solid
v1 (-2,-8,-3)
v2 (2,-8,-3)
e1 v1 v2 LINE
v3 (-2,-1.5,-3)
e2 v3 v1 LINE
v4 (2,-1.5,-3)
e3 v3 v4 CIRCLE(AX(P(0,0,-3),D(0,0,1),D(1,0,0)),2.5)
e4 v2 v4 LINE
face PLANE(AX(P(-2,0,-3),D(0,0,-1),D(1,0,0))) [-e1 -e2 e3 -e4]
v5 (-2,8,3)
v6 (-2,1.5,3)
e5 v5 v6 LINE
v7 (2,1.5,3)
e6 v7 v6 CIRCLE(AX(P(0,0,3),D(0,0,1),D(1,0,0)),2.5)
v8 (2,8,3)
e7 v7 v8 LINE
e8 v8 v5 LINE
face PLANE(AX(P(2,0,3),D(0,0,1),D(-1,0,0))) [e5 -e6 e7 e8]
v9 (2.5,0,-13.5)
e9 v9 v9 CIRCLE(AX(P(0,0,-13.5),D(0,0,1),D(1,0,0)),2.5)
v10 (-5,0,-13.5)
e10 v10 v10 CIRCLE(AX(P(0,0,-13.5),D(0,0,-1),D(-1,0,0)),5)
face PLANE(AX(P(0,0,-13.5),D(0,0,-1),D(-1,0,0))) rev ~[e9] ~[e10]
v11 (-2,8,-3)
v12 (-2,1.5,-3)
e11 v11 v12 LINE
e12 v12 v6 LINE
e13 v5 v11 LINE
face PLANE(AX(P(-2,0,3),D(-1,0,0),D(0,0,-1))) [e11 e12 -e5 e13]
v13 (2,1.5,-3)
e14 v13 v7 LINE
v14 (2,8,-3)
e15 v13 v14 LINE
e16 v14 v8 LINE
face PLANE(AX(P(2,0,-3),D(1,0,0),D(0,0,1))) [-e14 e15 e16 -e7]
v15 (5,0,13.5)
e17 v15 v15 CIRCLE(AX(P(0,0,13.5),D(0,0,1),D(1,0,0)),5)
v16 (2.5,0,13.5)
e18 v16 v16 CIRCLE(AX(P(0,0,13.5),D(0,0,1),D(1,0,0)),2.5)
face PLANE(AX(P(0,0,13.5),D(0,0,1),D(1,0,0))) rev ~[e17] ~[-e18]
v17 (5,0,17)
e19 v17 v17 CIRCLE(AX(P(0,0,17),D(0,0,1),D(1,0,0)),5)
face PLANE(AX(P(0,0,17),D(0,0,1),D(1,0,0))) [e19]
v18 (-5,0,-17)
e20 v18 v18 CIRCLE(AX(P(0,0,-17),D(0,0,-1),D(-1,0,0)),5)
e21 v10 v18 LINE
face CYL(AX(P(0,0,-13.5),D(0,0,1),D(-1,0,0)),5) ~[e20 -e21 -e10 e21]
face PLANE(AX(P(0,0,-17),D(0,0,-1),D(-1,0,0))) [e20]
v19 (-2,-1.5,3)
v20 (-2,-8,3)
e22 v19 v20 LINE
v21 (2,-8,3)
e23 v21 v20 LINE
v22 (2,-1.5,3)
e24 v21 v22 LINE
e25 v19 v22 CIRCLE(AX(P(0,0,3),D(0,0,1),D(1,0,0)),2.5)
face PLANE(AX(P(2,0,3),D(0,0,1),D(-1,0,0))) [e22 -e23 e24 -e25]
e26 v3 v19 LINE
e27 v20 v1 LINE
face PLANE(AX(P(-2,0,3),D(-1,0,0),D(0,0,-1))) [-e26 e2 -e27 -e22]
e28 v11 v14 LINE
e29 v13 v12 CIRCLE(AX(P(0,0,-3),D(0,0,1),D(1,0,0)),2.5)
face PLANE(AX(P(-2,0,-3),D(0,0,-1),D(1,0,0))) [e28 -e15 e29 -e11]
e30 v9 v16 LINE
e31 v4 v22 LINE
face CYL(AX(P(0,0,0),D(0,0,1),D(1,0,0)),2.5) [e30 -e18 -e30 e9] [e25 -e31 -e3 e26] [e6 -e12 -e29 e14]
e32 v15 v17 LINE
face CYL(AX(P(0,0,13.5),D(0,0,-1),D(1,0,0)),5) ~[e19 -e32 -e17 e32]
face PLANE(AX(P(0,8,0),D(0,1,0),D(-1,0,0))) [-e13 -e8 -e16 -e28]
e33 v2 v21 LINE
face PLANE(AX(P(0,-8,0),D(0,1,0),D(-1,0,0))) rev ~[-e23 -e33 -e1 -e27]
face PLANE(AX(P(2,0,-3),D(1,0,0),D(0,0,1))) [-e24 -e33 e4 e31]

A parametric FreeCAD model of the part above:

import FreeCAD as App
import Part
import Sketcher
from FreeCAD import Vector
Q = App.Units.Quantity


def add_polygon(sketch, points):
    """Adds a closed chain of lines whose ends are joined by coincident constraints."""
    first, n = sketch.GeometryCount, len(points)
    for a, b in zip(points, points[1:] + points[:1]):
        sketch.addGeometry(Part.LineSegment(App.Vector(*a, 0), App.Vector(*b, 0)), False)
    for i in range(n):
        sketch.addConstraint(Sketcher.Constraint("Coincident", first + i, 2, first + (i + 1) % n, 1))

doc = App.newDocument("Part")
body = doc.addObject("PartDesign::Body", "Body")

sketch1 = body.newObject("Sketcher::SketchObject", "Sketch")
sketch1.AttachmentSupport = (doc.getObject("XY_Plane"), [""])
sketch1.MapMode = "FlatFace"
sketch1.addGeometry(Part.Circle(Vector(0, 0, 0), Vector(0, 0, 1), 2.5), False)
sketch1.addConstraint([
    Sketcher.Constraint("Coincident", 0, 3, -1, 1),
    Sketcher.Constraint("Diameter", 0, Q("5 mm")),
])
pad1 = body.newObject("PartDesign::Pad", "Pad")
pad1.Profile = sketch1
pad1.Length = 27
pad1.Midplane = True

sketch2 = body.newObject("Sketcher::SketchObject", "Sketch001")
sketch2.AttachmentSupport = (doc.getObject("XY_Plane"), [""])
sketch2.MapMode = "FlatFace"
sketch2.AttachmentOffset = App.Placement(Vector(0, 0, 13.5), App.Rotation())
sketch2.addGeometry(Part.Circle(Vector(0, 0, 0), Vector(0, 0, 1), 5), False)
sketch2.addConstraint([
    Sketcher.Constraint("Coincident", 0, 3, -1, 1),
    Sketcher.Constraint("Diameter", 0, Q("10 mm")),
])
pad2 = body.newObject("PartDesign::Pad", "Pad001")
pad2.Profile = sketch2
pad2.Length = 3.5

sketch3 = body.newObject("Sketcher::SketchObject", "Sketch002")
sketch3.AttachmentSupport = (doc.getObject("XY_Plane"), [""])
sketch3.MapMode = "FlatFace"
sketch3.AttachmentOffset = App.Placement(Vector(0, 0, -13.5), App.Rotation())
sketch3.addGeometry(Part.Circle(Vector(0, 0, 0), Vector(0, 0, 1), 5), False)
sketch3.addConstraint([
    Sketcher.Constraint("Coincident", 0, 3, -1, 1),
    Sketcher.Constraint("Diameter", 0, Q("10 mm")),
])
pad3 = body.newObject("PartDesign::Pad", "Pad002")
pad3.Profile = sketch3
pad3.Length = 3.5
pad3.Reversed = True

sketch4 = body.newObject("Sketcher::SketchObject", "Sketch003")
sketch4.AttachmentSupport = (doc.getObject("XZ_Plane"), [""])
sketch4.MapMode = "FlatFace"
add_polygon(sketch4, [(-2, 3), (2, 3), (2, -3), (-2, -3)])
sketch4.addConstraint([
    Sketcher.Constraint("Horizontal", 0),
    Sketcher.Constraint("Vertical", 1),
    Sketcher.Constraint("Horizontal", 2),
    Sketcher.Constraint("Vertical", 3),
    Sketcher.Constraint("Symmetric", 0, 2, 2, 2, -1, 1),
    Sketcher.Constraint("DistanceX", 0, 1, 0, 2, Q("4 mm")),
    Sketcher.Constraint("DistanceY", 1, 2, 1, 1, Q("6 mm")),
])
pad4 = body.newObject("PartDesign::Pad", "Pad003")
pad4.Profile = sketch4
pad4.Length = 16
pad4.Midplane = True

doc.recompute()
